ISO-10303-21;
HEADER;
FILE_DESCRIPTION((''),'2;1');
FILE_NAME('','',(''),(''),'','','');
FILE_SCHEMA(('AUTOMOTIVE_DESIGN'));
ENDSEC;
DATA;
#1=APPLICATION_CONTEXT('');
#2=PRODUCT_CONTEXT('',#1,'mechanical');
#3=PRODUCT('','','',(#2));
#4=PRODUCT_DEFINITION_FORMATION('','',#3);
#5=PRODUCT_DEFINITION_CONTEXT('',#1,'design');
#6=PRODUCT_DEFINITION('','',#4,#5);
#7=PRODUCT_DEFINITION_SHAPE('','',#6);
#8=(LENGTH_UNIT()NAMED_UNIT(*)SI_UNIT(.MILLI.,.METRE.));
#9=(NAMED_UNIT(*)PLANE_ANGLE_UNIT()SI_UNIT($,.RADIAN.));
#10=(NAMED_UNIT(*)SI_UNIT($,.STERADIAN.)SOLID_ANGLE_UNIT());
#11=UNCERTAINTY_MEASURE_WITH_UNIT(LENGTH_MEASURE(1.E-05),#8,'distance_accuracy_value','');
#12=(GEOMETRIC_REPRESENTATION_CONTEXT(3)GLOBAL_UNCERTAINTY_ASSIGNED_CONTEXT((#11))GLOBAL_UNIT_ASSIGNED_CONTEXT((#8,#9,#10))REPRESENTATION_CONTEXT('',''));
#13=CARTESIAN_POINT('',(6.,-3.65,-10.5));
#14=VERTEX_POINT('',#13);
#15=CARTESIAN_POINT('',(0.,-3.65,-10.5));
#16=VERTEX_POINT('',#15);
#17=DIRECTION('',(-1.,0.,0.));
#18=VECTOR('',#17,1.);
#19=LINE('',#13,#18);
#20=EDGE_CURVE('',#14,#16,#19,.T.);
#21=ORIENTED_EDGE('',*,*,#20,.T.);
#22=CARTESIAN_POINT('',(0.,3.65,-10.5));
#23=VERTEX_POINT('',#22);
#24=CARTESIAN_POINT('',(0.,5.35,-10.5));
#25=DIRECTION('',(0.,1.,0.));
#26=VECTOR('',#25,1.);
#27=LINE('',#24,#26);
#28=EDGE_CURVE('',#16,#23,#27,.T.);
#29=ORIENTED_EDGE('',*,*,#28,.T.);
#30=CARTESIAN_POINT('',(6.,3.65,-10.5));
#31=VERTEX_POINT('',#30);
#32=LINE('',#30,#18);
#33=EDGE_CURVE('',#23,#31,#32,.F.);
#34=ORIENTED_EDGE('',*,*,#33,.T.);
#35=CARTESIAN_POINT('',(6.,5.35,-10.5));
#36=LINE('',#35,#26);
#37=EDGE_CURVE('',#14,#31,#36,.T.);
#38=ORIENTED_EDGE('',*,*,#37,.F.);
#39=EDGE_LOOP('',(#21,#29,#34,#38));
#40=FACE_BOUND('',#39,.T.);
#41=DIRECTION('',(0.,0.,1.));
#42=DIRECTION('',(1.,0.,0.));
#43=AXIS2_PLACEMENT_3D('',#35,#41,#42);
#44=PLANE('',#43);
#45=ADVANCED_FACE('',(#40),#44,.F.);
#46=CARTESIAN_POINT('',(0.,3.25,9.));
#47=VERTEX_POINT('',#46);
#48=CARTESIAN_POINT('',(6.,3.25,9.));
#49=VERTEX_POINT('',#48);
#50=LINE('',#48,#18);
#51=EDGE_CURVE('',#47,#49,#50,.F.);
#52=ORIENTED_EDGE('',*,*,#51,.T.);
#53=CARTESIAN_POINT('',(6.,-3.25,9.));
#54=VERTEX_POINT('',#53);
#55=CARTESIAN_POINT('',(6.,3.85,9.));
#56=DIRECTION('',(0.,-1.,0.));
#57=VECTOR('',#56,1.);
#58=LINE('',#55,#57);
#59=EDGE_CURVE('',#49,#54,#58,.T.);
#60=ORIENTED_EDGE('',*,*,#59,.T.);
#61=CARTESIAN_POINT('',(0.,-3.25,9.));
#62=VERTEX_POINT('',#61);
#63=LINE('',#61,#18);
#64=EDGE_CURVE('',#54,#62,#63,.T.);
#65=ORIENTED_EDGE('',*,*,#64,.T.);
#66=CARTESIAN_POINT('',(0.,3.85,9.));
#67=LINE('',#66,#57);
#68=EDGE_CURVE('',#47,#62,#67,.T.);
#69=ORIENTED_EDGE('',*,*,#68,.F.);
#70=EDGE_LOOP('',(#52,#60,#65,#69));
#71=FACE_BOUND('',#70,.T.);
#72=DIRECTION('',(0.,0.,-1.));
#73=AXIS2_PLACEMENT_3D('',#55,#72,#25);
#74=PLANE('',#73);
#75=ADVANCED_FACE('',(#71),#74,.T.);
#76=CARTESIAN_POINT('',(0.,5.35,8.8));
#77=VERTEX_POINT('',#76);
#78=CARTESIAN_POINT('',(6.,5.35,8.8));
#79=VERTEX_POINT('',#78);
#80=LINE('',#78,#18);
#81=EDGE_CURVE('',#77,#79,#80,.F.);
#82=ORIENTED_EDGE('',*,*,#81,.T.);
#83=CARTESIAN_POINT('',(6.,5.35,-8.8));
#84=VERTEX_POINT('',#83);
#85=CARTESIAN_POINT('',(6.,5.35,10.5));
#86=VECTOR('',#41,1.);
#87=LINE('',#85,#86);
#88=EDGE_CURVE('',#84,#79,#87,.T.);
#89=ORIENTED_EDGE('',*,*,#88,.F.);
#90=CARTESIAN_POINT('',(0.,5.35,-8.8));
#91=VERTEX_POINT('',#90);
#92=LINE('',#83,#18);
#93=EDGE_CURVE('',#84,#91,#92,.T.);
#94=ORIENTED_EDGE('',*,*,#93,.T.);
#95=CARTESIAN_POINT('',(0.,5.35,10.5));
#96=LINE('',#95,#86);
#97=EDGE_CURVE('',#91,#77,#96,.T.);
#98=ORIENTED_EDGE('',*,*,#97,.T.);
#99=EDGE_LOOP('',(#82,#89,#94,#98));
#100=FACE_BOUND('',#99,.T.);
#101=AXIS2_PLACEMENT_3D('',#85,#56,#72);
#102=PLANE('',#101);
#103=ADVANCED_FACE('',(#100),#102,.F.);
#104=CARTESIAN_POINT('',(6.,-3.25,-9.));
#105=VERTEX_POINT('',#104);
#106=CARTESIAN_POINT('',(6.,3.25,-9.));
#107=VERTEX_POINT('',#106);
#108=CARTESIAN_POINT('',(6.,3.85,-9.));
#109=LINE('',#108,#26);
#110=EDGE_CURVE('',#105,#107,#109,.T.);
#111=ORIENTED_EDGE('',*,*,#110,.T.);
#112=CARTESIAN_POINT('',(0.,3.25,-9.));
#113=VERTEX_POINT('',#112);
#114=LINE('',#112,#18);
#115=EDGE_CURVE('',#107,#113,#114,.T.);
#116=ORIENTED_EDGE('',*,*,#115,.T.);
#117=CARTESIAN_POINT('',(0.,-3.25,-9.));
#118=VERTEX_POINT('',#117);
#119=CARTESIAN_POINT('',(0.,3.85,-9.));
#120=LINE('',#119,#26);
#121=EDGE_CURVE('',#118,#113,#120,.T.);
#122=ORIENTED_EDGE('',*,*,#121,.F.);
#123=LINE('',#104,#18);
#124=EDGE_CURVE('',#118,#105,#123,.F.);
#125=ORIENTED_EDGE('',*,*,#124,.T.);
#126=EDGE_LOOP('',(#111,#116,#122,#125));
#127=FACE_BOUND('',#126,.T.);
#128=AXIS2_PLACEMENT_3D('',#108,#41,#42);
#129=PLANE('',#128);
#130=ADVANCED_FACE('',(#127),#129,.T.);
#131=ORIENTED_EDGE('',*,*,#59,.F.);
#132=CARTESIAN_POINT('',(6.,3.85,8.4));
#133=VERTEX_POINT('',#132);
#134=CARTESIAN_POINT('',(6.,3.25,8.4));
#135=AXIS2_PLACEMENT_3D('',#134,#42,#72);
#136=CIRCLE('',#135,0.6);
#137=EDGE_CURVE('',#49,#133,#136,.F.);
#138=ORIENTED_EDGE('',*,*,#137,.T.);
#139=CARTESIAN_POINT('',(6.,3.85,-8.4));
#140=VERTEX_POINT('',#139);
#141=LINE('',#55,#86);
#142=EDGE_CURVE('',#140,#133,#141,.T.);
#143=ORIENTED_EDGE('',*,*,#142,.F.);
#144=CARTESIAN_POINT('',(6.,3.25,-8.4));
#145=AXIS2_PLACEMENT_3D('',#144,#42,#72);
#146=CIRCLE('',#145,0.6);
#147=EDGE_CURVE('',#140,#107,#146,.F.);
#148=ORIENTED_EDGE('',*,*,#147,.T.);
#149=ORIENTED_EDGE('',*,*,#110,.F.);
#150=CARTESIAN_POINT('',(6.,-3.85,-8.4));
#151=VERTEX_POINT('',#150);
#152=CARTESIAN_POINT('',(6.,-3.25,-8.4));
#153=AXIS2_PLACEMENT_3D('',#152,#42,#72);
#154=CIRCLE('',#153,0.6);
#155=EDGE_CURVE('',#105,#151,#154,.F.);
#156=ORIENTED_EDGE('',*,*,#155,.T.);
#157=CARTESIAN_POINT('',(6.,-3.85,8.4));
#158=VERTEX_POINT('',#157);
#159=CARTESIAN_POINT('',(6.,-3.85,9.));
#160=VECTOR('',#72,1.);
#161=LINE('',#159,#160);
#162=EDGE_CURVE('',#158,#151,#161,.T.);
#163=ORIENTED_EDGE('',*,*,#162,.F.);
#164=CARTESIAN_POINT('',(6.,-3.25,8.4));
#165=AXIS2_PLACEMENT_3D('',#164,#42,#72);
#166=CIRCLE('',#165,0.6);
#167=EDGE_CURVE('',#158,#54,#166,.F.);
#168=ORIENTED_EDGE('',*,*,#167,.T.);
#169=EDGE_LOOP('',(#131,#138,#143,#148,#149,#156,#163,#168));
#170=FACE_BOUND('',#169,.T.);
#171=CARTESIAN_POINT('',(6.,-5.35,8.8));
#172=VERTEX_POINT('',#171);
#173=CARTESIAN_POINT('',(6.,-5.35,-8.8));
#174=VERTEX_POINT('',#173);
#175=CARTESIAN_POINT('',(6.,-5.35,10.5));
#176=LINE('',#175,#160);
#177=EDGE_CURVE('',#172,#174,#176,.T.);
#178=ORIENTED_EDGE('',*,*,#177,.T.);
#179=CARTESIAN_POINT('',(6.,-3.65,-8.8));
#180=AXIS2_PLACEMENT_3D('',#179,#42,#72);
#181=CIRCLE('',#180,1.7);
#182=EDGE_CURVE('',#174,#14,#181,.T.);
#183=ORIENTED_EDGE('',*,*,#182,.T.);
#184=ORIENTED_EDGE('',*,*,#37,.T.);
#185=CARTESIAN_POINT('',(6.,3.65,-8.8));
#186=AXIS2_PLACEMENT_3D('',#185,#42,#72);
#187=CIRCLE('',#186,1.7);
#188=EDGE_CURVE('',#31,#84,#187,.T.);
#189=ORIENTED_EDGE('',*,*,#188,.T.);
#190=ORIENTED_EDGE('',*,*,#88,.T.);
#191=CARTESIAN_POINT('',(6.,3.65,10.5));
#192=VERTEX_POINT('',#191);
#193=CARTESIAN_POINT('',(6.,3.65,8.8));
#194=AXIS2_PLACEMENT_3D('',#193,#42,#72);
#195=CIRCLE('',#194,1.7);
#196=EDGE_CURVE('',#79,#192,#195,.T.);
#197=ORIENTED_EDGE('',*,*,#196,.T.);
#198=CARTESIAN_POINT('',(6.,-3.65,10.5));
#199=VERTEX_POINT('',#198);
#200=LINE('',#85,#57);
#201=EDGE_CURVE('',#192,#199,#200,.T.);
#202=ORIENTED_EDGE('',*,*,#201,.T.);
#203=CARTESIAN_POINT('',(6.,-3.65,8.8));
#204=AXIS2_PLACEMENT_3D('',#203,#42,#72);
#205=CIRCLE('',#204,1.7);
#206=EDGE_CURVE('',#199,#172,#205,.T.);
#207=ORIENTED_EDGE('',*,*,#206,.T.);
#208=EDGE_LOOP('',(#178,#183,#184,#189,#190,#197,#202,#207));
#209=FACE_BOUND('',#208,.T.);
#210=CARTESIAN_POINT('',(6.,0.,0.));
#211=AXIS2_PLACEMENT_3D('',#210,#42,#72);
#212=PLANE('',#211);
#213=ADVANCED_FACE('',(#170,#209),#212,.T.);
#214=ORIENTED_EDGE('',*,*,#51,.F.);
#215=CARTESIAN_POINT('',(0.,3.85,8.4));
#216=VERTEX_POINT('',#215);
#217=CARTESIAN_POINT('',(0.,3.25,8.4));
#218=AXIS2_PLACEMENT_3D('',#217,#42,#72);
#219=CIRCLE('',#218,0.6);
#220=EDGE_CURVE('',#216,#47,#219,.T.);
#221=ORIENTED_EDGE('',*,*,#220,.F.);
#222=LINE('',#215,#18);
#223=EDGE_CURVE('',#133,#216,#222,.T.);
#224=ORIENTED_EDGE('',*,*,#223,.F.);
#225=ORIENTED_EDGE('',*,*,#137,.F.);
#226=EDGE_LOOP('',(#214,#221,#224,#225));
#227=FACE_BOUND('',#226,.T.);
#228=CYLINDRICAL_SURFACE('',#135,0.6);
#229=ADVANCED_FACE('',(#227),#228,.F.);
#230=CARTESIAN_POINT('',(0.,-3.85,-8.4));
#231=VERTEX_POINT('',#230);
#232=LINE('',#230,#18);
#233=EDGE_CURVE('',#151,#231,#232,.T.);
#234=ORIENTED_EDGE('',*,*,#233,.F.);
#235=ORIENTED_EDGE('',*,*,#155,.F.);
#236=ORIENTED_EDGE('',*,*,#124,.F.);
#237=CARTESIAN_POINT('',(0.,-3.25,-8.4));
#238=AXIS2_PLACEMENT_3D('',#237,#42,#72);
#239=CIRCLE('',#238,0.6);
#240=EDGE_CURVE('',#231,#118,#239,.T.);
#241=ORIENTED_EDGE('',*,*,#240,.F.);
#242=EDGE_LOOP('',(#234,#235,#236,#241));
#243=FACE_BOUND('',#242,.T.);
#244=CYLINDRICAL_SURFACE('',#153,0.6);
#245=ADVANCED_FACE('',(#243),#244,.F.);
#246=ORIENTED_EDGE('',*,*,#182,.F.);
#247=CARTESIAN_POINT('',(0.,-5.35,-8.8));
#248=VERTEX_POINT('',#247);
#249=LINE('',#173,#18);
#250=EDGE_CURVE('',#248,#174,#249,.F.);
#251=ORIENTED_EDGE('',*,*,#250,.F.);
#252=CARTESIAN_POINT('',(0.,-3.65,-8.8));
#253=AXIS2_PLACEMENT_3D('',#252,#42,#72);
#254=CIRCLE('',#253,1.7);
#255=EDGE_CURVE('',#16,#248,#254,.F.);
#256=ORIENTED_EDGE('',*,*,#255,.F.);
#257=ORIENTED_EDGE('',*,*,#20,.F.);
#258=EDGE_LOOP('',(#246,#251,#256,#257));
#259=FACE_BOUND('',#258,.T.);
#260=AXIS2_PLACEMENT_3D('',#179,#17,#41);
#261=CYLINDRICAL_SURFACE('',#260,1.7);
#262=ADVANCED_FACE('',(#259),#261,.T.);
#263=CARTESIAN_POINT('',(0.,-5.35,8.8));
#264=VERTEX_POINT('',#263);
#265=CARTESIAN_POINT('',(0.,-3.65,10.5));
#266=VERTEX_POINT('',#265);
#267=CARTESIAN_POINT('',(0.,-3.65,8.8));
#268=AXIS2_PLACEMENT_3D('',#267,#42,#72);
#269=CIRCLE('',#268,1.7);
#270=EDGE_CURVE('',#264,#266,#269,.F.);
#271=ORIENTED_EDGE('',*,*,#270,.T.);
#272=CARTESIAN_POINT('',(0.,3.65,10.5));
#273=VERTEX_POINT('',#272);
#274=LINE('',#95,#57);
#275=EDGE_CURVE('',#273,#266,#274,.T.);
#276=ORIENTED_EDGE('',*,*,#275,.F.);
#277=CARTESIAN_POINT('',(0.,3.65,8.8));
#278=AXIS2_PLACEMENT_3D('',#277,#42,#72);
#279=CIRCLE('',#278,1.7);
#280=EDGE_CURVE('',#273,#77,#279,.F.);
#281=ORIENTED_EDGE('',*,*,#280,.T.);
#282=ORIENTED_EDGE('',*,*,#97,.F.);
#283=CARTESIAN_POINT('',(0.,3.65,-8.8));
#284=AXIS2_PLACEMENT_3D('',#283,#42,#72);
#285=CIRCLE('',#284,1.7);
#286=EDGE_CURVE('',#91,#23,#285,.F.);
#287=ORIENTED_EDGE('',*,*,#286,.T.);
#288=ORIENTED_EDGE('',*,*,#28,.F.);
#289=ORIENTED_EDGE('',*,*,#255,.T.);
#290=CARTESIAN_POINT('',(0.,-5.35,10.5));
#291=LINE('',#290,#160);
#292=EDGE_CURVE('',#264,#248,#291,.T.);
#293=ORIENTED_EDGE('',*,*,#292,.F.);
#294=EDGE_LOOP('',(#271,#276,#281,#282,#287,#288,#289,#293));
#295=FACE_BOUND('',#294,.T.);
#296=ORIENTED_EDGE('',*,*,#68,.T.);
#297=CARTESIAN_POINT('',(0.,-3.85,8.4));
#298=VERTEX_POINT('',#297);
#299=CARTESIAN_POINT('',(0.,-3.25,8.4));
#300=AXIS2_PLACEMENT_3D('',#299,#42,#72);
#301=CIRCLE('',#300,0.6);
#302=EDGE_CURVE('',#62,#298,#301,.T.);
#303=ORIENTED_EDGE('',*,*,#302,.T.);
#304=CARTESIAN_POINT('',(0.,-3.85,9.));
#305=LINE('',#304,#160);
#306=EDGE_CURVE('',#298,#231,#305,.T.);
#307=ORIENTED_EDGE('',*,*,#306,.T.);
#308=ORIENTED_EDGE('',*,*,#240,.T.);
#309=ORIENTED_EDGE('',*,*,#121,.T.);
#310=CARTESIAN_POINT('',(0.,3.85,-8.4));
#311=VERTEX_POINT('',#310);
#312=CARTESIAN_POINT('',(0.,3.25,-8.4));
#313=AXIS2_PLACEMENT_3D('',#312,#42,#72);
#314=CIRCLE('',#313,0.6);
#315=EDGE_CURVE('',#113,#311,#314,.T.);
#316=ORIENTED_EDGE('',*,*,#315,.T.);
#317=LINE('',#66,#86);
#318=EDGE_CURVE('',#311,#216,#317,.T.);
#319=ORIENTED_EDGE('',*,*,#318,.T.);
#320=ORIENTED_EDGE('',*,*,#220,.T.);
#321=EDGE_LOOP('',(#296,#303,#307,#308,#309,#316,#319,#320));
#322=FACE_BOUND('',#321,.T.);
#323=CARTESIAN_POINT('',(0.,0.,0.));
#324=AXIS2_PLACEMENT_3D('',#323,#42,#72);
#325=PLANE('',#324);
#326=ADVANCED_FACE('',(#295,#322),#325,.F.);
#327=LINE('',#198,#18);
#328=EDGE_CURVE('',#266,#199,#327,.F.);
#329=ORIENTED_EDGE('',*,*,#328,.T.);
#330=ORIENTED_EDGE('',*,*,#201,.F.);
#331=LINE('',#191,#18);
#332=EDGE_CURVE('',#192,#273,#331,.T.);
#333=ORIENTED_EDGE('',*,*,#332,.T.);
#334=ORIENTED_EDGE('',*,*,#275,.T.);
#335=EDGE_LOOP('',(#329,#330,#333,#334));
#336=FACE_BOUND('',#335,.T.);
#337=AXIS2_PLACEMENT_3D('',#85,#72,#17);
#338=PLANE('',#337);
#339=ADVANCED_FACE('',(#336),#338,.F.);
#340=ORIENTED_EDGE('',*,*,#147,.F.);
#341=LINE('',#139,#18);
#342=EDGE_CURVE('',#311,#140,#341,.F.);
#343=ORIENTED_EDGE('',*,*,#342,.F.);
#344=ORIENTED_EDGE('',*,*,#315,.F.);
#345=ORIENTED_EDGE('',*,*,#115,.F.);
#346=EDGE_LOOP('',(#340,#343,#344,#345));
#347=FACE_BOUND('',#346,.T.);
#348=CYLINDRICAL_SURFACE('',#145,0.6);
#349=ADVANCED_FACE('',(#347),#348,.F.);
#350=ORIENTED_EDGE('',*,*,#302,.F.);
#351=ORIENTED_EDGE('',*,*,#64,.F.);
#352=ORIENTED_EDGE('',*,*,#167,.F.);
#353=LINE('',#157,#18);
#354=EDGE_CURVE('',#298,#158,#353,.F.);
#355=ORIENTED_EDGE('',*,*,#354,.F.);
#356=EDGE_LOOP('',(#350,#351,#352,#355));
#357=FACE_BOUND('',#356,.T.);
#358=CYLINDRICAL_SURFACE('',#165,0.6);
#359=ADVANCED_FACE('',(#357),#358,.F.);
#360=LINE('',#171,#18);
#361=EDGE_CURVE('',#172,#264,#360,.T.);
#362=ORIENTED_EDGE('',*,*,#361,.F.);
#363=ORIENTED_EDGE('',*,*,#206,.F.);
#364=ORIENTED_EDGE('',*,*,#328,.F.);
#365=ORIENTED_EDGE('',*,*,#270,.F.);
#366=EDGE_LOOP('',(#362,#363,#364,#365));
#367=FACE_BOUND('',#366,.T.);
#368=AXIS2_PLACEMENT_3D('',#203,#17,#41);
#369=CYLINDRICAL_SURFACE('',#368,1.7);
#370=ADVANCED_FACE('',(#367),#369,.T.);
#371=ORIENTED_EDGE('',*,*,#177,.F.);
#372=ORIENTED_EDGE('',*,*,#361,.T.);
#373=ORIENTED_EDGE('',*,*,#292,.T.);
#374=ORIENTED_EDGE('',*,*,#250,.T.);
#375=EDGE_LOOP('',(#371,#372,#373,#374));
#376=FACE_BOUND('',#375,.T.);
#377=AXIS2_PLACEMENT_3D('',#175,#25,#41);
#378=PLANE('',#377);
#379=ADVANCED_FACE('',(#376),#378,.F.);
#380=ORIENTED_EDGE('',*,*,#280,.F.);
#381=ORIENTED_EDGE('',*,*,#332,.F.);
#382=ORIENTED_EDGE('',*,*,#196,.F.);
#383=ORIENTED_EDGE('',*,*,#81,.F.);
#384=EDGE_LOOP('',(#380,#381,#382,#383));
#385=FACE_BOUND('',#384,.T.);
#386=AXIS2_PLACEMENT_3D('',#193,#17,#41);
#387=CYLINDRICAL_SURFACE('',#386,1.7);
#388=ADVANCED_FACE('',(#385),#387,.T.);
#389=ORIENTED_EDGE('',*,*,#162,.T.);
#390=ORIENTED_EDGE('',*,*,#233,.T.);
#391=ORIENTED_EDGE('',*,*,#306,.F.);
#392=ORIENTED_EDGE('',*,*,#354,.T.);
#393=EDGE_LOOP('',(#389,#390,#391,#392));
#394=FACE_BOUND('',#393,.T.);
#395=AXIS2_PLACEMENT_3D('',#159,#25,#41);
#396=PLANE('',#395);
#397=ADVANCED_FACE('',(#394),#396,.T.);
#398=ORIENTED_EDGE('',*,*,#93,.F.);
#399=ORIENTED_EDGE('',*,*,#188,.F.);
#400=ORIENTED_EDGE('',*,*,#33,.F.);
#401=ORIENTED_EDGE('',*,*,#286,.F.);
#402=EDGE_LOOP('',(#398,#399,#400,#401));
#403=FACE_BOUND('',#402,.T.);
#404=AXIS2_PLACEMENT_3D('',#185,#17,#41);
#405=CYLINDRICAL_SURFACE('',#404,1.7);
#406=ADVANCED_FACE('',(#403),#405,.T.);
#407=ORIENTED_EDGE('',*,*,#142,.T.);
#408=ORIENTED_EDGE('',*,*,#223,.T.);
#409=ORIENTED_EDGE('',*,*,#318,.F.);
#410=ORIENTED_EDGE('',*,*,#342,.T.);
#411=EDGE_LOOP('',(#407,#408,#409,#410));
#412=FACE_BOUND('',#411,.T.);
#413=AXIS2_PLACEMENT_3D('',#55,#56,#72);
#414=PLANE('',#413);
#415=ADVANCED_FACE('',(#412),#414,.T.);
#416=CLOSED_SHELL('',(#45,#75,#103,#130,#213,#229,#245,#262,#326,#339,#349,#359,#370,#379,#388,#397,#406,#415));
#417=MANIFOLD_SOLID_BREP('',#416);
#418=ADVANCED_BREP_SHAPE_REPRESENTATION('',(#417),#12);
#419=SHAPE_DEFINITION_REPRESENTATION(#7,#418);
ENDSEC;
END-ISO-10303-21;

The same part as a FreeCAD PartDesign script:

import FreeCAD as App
import Part
import Sketcher

V = App.Vector
Q = App.Units.Quantity


def edges_at(feature, points):
    """Names of the edges that pass closest to the given points."""
    edges = feature.Shape.Edges
    near = lambda p: min(range(len(edges)), key=lambda i: edges[i].distToShape(Part.Vertex(*p))[0])
    return sorted({f"Edge{near(p) + 1}" for p in points})

doc = App.newDocument("Part")
body = doc.addObject("PartDesign::Body", "Body")

# Sketch on YZ plane
sketch1 = body.newObject("Sketcher::SketchObject", "Sketch")
sketch1.AttachmentSupport = (doc.getObject("YZ_Plane"), [""])
sketch1.MapMode = "FlatFace"
sketch1.addGeometry([
    Part.LineSegment(V(5, 10, 0), V(-5, 10, 0)),  # 0
    Part.LineSegment(V(-5, 10, 0), V(-5, -10, 0)),  # 1
    Part.LineSegment(V(-5, -10, 0), V(5, -10, 0)),  # 2
    Part.LineSegment(V(5, -10, 0), V(5, 10, 0)),  # 3
    Part.LineSegment(V(-4, -9, 0), V(-4, 9, 0)),  # 4
    Part.LineSegment(V(-4, 9, 0), V(4, 9, 0)),  # 5
    Part.LineSegment(V(4, 9, 0), V(4, -9, 0)),  # 6
    Part.LineSegment(V(4, -9, 0), V(-4, -9, 0)),  # 7
], False)
sketch1.addConstraint([
    Sketcher.Constraint("Coincident", 0, 2, 1, 1),
    Sketcher.Constraint("Coincident", 1, 2, 2, 1),
    Sketcher.Constraint("Coincident", 2, 2, 3, 1),
    Sketcher.Constraint("Coincident", 3, 2, 0, 1),
    Sketcher.Constraint("Coincident", 4, 2, 5, 1),
    Sketcher.Constraint("Coincident", 5, 2, 6, 1),
    Sketcher.Constraint("Coincident", 6, 2, 7, 1),
    Sketcher.Constraint("Coincident", 7, 2, 4, 1),
    Sketcher.Constraint("Horizontal", 0),
    Sketcher.Constraint("Vertical", 1),
    Sketcher.Constraint("Horizontal", 2),
    Sketcher.Constraint("Vertical", 3),
    Sketcher.Constraint("Vertical", 4),
    Sketcher.Constraint("Horizontal", 5),
    Sketcher.Constraint("Vertical", 6),
    Sketcher.Constraint("Horizontal", 7),
    Sketcher.Constraint("Symmetric", 0, 2, 2, 2, -1, 1),
    Sketcher.Constraint("Symmetric", 4, 2, 6, 2, -1, 1),
    Sketcher.Constraint("DistanceY", 1, 2, 1, 1, Q("21 mm")),
    Sketcher.Constraint("DistanceY", 4, 1, 4, 2, Q("18 mm")),
    Sketcher.Constraint("DistanceX", 0, 2, 0, 1, Q("10.7 mm")),
    Sketcher.Constraint("DistanceX", 5, 1, 5, 2, Q("7.7 mm")),
])
pad1 = body.newObject("PartDesign::Pad", "Pad")
pad1.Profile = sketch1
pad1.Length = 6
doc.recompute()

fillet = body.newObject("PartDesign::Fillet", "Fillet")
fillet.Base = (pad1, edges_at(pad1, [
    (3, -3.85, -9),
    (3, 3.85, -9),
    (3, 3.85, 9),
    (3, -3.85, 9),
]))
fillet.Radius = 0.6
doc.recompute()

fillet2 = body.newObject("PartDesign::Fillet", "Fillet001")
fillet2.Base = (fillet, edges_at(fillet, [
    (3, -5.35, -10.5),
    (3, -5.35, 10.5),
    (3, 5.35, 10.5),
    (3, 5.35, -10.5),
]))
fillet2.Radius = 1.7

doc.recompute()
